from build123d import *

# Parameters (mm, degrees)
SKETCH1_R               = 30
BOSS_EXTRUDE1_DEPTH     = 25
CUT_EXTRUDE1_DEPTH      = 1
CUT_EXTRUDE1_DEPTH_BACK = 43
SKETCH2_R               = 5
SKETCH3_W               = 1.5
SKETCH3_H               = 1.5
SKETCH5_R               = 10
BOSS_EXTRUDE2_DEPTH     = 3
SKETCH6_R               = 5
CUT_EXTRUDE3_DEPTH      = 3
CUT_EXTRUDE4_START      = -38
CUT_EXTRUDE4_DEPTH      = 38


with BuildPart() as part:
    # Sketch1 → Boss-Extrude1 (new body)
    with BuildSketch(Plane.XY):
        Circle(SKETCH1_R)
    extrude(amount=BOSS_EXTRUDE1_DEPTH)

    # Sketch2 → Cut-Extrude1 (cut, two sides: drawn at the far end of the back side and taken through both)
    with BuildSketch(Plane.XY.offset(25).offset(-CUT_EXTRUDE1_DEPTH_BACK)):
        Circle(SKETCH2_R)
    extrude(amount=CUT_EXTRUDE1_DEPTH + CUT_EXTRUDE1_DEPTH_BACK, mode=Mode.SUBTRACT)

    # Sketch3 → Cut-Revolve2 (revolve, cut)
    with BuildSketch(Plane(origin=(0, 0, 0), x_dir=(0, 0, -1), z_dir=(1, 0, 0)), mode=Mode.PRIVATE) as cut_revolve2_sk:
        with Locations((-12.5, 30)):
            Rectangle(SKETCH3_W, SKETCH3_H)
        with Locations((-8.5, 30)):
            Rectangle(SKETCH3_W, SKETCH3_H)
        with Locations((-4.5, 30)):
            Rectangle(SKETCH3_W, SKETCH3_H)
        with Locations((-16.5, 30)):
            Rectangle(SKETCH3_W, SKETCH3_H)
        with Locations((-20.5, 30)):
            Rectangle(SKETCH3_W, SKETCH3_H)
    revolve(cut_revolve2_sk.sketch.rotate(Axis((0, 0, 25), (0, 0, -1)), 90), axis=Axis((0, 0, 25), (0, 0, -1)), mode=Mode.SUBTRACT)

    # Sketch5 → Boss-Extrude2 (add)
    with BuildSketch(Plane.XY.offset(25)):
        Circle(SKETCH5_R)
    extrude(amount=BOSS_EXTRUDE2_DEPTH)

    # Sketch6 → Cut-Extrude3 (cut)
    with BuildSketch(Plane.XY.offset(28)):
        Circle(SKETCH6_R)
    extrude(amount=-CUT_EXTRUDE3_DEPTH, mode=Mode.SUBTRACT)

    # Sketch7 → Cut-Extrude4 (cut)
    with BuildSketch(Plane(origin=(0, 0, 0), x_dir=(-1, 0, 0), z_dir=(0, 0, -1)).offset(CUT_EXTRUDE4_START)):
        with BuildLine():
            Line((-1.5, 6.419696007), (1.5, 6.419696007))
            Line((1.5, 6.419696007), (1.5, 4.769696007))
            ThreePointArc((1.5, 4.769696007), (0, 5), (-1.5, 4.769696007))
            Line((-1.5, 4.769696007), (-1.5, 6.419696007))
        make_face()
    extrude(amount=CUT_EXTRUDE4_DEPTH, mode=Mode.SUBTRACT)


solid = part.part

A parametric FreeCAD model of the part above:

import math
import FreeCAD as App
import Part
import Sketcher

V = App.Vector

doc = App.newDocument("Part")
body = doc.addObject("PartDesign::Body", "Body")

sketch1 = body.newObject("Sketcher::SketchObject", "Sketch")
sketch1.AttachmentSupport = (doc.getObject("XY_Plane"), [""])
sketch1.MapMode = "FlatFace"
sketch1.addGeometry(Part.Circle(V(0, 0, 0), V(0, 0, 1), 30), False)
sketch1.addConstraint([
    Sketcher.Constraint("Coincident", 0, 3, -1, 1),
    Sketcher.Constraint("Diameter", 0, 60.0),
])
pad1 = body.newObject("PartDesign::Pad", "Pad")
pad1.Profile = sketch1
pad1.Length = 25

sketch2 = body.newObject("Sketcher::SketchObject", "Sketch001")
sketch2.AttachmentSupport = (doc.getObject("XY_Plane"), [""])
sketch2.MapMode = "FlatFace"
sketch2.AttachmentOffset = App.Placement(V(0, 0, 25), App.Rotation())
sketch2.addGeometry(Part.Circle(V(0, 0, 0), V(0, 0, 1), 5), False)
sketch2.addConstraint([
    Sketcher.Constraint("Coincident", 0, 3, -1, 1),
    Sketcher.Constraint("Diameter", 0, 10.0),
])
pocket1 = body.newObject("PartDesign::Pocket", "Pocket")
pocket1.Profile = sketch2
pocket1.Type = "ThroughAll"
pocket1.Midplane = True

sketch3 = body.newObject("Sketcher::SketchObject", "Sketch002")
sketch3.AttachmentSupport = (doc.getObject("YZ_Plane"), [""])
sketch3.MapMode = "FlatFace"
sketch3.addGeometry([
    Part.LineSegment(V(30.8, 13.2, 0), V(29.2, 13.2, 0)),
    Part.LineSegment(V(29.2, 13.2, 0), V(29.2, 11.8, 0)),
    Part.LineSegment(V(29.2, 11.8, 0), V(30.8, 11.8, 0)),
    Part.LineSegment(V(30.8, 11.8, 0), V(30.8, 13.2, 0)),
    Part.LineSegment(V(30.8, 9.2, 0), V(29.2, 9.2, 0)),
    Part.LineSegment(V(29.2, 9.2, 0), V(29.2, 7.8, 0)),
    Part.LineSegment(V(29.2, 7.8, 0), V(30.8, 7.8, 0)),
    Part.LineSegment(V(30.8, 7.8, 0), V(30.8, 9.2, 0)),
    Part.LineSegment(V(30.8, 5.2, 0), V(29.2, 5.2, 0)),
    Part.LineSegment(V(29.2, 5.2, 0), V(29.2, 3.8, 0)),
    Part.LineSegment(V(29.2, 3.8, 0), V(30.8, 3.8, 0)),
    Part.LineSegment(V(30.8, 3.8, 0), V(30.8, 5.2, 0)),
    Part.LineSegment(V(30.8, 17.2, 0), V(29.2, 17.2, 0)),
    Part.LineSegment(V(29.2, 17.2, 0), V(29.2, 15.8, 0)),
    Part.LineSegment(V(29.2, 15.8, 0), V(30.8, 15.8, 0)),
    Part.LineSegment(V(30.8, 15.8, 0), V(30.8, 17.2, 0)),
    Part.LineSegment(V(30.8, 21.2, 0), V(29.2, 21.2, 0)),
    Part.LineSegment(V(29.2, 21.2, 0), V(29.2, 19.8, 0)),
    Part.LineSegment(V(29.2, 19.8, 0), V(30.8, 19.8, 0)),
    Part.LineSegment(V(30.8, 19.8, 0), V(30.8, 21.2, 0)),
], False)
sketch3.addConstraint([
    Sketcher.Constraint("Coincident", 0, 2, 1, 1),
    Sketcher.Constraint("Coincident", 1, 2, 2, 1),
    Sketcher.Constraint("Coincident", 2, 2, 3, 1),
    Sketcher.Constraint("Coincident", 3, 2, 0, 1),
    Sketcher.Constraint("Coincident", 4, 2, 5, 1),
    Sketcher.Constraint("Coincident", 5, 2, 6, 1),
    Sketcher.Constraint("Coincident", 6, 2, 7, 1),
    Sketcher.Constraint("Coincident", 7, 2, 4, 1),
    Sketcher.Constraint("Coincident", 8, 2, 9, 1),
    Sketcher.Constraint("Coincident", 9, 2, 10, 1),
    Sketcher.Constraint("Coincident", 10, 2, 11, 1),
    Sketcher.Constraint("Coincident", 11, 2, 8, 1),
    Sketcher.Constraint("Coincident", 12, 2, 13, 1),
    Sketcher.Constraint("Coincident", 13, 2, 14, 1),
    Sketcher.Constraint("Coincident", 14, 2, 15, 1),
    Sketcher.Constraint("Coincident", 15, 2, 12, 1),
    Sketcher.Constraint("Coincident", 16, 2, 17, 1),
    Sketcher.Constraint("Coincident", 17, 2, 18, 1),
    Sketcher.Constraint("Coincident", 18, 2, 19, 1),
    Sketcher.Constraint("Coincident", 19, 2, 16, 1),
    Sketcher.Constraint("Horizontal", 0),
    Sketcher.Constraint("Vertical", 1),
    Sketcher.Constraint("Horizontal", 2),
    Sketcher.Constraint("Vertical", 3),
    Sketcher.Constraint("Horizontal", 4),
    Sketcher.Constraint("Vertical", 5),
    Sketcher.Constraint("Horizontal", 6),
    Sketcher.Constraint("Vertical", 7),
    Sketcher.Constraint("Horizontal", 8),
    Sketcher.Constraint("Vertical", 9),
    Sketcher.Constraint("Horizontal", 10),
    Sketcher.Constraint("Vertical", 11),
    Sketcher.Constraint("Horizontal", 12),
    Sketcher.Constraint("Vertical", 13),
    Sketcher.Constraint("Horizontal", 14),
    Sketcher.Constraint("Vertical", 15),
    Sketcher.Constraint("Horizontal", 16),
    Sketcher.Constraint("Vertical", 17),
    Sketcher.Constraint("Horizontal", 18),
    Sketcher.Constraint("Vertical", 19),
    Sketcher.Constraint("Vertical", 1, 2, 4, 2),
    Sketcher.Constraint("Vertical", 3, 2, 6, 2),
    Sketcher.Constraint("Vertical", 5, 2, 8, 2),
    Sketcher.Constraint("Vertical", 7, 2, 10, 2),
    Sketcher.Constraint("Vertical", 9, 2, 12, 2),
    Sketcher.Constraint("Vertical", 11, 2, 14, 2),
    Sketcher.Constraint("Vertical", 13, 2, 16, 2),
    Sketcher.Constraint("Vertical", 15, 2, 18, 2),
    Sketcher.Constraint("Equal", 18, 1),
    Sketcher.Constraint("Equal", 3, 5),
    Sketcher.Constraint("Equal", 7, 9),
    Sketcher.Constraint("Equal", 11, 13),
    Sketcher.Constraint("Equal", 15, 17),
    Sketcher.Constraint("DistanceX", 0, 2, 0, 1, 1.5),
    Sketcher.Constraint("DistanceY", 4, 2, 0, 2, 4.0),
    Sketcher.Constraint("DistanceY", 8, 2, 4, 2, 4.0),
    Sketcher.Constraint("DistanceY", 0, 2, 12, 2, 4.0),
    Sketcher.Constraint("DistanceY", 12, 2, 16, 2, 4.0),
    Sketcher.Constraint("DistanceX", -1, 1, 0, 2, 29.25),
    Sketcher.Constraint("DistanceY", -1, 1, 0, 2, 13.25),
])
groove = body.newObject("PartDesign::Groove", "Groove")
groove.Profile = sketch3
groove.ReferenceAxis = (sketch3, ["V_Axis"])
groove.Angle = 360

sketch4 = body.newObject("Sketcher::SketchObject", "Sketch003")
sketch4.AttachmentSupport = (doc.getObject("XY_Plane"), [""])
sketch4.MapMode = "FlatFace"
sketch4.AttachmentOffset = App.Placement(V(0, 0, 25), App.Rotation())
sketch4.addGeometry(Part.Circle(V(0, 0, 0), V(0, 0, 1), 10), False)
sketch4.addConstraint([
    Sketcher.Constraint("Coincident", 0, 3, -1, 1),
    Sketcher.Constraint("Diameter", 0, 20.0),
])
pad2 = body.newObject("PartDesign::Pad", "Pad001")
pad2.Profile = sketch4
pad2.Length = 3

sketch5 = body.newObject("Sketcher::SketchObject", "Sketch004")
sketch5.AttachmentSupport = (doc.getObject("XY_Plane"), [""])
sketch5.MapMode = "FlatFace"
sketch5.AttachmentOffset = App.Placement(V(0, 0, 28), App.Rotation())
sketch5.addGeometry(Part.Circle(V(0, 0, 0), V(0, 0, 1), 5), False)
sketch5.addConstraint([
    Sketcher.Constraint("Coincident", 0, 3, -1, 1),
    Sketcher.Constraint("Diameter", 0, 10.0),
])
pocket2 = body.newObject("PartDesign::Pocket", "Pocket001")
pocket2.Profile = sketch5
pocket2.Length = 3

sketch6 = body.newObject("Sketcher::SketchObject", "Sketch005")
sketch6.AttachmentSupport = (doc.getObject("XY_Plane"), [""])
sketch6.MapMode = "FlatFace"
sketch6.AttachmentOffset = App.Placement(V(0, 0, 38), App.Rotation())
sketch6.addGeometry([
    Part.LineSegment(V(-1.5, 6.4, 0), V(1.5, 6.4, 0)),
    Part.LineSegment(V(1.5, 6.4, 0), V(1.5, 4.8, 0)),
    Part.ArcOfCircle(Part.Circle(V(0, 0, 0), V(0, 0, 1), 5), math.radians(73), math.radians(107)),
    Part.LineSegment(V(-1.5, 4.8, 0), V(-1.5, 6.4, 0)),
], False)
sketch6.addConstraint([
    Sketcher.Constraint("Coincident", 0, 2, 1, 1),
    Sketcher.Constraint("Coincident", 1, 2, 2, 1),
    Sketcher.Constraint("Coincident", 2, 2, 3, 1),
    Sketcher.Constraint("Coincident", 3, 2, 0, 1),
    Sketcher.Constraint("Horizontal", 0),
    Sketcher.Constraint("Vertical", 1),
    Sketcher.Constraint("Vertical", 3),
    Sketcher.Constraint("Coincident", 2, 3, -1, 1),
    Sketcher.Constraint("Horizontal", 1, 2, 2, 2),
    Sketcher.Constraint("Radius", 2, 5.0),
    Sketcher.Constraint("DistanceX", 0, 1, 0, 2, 3.0),
    Sketcher.Constraint("DistanceY", 1, 2, 1, 1, 1.65),
])
pocket3 = body.newObject("PartDesign::Pocket", "Pocket002")
pocket3.Profile = sketch6
pocket3.Length = 38

doc.recompute()
